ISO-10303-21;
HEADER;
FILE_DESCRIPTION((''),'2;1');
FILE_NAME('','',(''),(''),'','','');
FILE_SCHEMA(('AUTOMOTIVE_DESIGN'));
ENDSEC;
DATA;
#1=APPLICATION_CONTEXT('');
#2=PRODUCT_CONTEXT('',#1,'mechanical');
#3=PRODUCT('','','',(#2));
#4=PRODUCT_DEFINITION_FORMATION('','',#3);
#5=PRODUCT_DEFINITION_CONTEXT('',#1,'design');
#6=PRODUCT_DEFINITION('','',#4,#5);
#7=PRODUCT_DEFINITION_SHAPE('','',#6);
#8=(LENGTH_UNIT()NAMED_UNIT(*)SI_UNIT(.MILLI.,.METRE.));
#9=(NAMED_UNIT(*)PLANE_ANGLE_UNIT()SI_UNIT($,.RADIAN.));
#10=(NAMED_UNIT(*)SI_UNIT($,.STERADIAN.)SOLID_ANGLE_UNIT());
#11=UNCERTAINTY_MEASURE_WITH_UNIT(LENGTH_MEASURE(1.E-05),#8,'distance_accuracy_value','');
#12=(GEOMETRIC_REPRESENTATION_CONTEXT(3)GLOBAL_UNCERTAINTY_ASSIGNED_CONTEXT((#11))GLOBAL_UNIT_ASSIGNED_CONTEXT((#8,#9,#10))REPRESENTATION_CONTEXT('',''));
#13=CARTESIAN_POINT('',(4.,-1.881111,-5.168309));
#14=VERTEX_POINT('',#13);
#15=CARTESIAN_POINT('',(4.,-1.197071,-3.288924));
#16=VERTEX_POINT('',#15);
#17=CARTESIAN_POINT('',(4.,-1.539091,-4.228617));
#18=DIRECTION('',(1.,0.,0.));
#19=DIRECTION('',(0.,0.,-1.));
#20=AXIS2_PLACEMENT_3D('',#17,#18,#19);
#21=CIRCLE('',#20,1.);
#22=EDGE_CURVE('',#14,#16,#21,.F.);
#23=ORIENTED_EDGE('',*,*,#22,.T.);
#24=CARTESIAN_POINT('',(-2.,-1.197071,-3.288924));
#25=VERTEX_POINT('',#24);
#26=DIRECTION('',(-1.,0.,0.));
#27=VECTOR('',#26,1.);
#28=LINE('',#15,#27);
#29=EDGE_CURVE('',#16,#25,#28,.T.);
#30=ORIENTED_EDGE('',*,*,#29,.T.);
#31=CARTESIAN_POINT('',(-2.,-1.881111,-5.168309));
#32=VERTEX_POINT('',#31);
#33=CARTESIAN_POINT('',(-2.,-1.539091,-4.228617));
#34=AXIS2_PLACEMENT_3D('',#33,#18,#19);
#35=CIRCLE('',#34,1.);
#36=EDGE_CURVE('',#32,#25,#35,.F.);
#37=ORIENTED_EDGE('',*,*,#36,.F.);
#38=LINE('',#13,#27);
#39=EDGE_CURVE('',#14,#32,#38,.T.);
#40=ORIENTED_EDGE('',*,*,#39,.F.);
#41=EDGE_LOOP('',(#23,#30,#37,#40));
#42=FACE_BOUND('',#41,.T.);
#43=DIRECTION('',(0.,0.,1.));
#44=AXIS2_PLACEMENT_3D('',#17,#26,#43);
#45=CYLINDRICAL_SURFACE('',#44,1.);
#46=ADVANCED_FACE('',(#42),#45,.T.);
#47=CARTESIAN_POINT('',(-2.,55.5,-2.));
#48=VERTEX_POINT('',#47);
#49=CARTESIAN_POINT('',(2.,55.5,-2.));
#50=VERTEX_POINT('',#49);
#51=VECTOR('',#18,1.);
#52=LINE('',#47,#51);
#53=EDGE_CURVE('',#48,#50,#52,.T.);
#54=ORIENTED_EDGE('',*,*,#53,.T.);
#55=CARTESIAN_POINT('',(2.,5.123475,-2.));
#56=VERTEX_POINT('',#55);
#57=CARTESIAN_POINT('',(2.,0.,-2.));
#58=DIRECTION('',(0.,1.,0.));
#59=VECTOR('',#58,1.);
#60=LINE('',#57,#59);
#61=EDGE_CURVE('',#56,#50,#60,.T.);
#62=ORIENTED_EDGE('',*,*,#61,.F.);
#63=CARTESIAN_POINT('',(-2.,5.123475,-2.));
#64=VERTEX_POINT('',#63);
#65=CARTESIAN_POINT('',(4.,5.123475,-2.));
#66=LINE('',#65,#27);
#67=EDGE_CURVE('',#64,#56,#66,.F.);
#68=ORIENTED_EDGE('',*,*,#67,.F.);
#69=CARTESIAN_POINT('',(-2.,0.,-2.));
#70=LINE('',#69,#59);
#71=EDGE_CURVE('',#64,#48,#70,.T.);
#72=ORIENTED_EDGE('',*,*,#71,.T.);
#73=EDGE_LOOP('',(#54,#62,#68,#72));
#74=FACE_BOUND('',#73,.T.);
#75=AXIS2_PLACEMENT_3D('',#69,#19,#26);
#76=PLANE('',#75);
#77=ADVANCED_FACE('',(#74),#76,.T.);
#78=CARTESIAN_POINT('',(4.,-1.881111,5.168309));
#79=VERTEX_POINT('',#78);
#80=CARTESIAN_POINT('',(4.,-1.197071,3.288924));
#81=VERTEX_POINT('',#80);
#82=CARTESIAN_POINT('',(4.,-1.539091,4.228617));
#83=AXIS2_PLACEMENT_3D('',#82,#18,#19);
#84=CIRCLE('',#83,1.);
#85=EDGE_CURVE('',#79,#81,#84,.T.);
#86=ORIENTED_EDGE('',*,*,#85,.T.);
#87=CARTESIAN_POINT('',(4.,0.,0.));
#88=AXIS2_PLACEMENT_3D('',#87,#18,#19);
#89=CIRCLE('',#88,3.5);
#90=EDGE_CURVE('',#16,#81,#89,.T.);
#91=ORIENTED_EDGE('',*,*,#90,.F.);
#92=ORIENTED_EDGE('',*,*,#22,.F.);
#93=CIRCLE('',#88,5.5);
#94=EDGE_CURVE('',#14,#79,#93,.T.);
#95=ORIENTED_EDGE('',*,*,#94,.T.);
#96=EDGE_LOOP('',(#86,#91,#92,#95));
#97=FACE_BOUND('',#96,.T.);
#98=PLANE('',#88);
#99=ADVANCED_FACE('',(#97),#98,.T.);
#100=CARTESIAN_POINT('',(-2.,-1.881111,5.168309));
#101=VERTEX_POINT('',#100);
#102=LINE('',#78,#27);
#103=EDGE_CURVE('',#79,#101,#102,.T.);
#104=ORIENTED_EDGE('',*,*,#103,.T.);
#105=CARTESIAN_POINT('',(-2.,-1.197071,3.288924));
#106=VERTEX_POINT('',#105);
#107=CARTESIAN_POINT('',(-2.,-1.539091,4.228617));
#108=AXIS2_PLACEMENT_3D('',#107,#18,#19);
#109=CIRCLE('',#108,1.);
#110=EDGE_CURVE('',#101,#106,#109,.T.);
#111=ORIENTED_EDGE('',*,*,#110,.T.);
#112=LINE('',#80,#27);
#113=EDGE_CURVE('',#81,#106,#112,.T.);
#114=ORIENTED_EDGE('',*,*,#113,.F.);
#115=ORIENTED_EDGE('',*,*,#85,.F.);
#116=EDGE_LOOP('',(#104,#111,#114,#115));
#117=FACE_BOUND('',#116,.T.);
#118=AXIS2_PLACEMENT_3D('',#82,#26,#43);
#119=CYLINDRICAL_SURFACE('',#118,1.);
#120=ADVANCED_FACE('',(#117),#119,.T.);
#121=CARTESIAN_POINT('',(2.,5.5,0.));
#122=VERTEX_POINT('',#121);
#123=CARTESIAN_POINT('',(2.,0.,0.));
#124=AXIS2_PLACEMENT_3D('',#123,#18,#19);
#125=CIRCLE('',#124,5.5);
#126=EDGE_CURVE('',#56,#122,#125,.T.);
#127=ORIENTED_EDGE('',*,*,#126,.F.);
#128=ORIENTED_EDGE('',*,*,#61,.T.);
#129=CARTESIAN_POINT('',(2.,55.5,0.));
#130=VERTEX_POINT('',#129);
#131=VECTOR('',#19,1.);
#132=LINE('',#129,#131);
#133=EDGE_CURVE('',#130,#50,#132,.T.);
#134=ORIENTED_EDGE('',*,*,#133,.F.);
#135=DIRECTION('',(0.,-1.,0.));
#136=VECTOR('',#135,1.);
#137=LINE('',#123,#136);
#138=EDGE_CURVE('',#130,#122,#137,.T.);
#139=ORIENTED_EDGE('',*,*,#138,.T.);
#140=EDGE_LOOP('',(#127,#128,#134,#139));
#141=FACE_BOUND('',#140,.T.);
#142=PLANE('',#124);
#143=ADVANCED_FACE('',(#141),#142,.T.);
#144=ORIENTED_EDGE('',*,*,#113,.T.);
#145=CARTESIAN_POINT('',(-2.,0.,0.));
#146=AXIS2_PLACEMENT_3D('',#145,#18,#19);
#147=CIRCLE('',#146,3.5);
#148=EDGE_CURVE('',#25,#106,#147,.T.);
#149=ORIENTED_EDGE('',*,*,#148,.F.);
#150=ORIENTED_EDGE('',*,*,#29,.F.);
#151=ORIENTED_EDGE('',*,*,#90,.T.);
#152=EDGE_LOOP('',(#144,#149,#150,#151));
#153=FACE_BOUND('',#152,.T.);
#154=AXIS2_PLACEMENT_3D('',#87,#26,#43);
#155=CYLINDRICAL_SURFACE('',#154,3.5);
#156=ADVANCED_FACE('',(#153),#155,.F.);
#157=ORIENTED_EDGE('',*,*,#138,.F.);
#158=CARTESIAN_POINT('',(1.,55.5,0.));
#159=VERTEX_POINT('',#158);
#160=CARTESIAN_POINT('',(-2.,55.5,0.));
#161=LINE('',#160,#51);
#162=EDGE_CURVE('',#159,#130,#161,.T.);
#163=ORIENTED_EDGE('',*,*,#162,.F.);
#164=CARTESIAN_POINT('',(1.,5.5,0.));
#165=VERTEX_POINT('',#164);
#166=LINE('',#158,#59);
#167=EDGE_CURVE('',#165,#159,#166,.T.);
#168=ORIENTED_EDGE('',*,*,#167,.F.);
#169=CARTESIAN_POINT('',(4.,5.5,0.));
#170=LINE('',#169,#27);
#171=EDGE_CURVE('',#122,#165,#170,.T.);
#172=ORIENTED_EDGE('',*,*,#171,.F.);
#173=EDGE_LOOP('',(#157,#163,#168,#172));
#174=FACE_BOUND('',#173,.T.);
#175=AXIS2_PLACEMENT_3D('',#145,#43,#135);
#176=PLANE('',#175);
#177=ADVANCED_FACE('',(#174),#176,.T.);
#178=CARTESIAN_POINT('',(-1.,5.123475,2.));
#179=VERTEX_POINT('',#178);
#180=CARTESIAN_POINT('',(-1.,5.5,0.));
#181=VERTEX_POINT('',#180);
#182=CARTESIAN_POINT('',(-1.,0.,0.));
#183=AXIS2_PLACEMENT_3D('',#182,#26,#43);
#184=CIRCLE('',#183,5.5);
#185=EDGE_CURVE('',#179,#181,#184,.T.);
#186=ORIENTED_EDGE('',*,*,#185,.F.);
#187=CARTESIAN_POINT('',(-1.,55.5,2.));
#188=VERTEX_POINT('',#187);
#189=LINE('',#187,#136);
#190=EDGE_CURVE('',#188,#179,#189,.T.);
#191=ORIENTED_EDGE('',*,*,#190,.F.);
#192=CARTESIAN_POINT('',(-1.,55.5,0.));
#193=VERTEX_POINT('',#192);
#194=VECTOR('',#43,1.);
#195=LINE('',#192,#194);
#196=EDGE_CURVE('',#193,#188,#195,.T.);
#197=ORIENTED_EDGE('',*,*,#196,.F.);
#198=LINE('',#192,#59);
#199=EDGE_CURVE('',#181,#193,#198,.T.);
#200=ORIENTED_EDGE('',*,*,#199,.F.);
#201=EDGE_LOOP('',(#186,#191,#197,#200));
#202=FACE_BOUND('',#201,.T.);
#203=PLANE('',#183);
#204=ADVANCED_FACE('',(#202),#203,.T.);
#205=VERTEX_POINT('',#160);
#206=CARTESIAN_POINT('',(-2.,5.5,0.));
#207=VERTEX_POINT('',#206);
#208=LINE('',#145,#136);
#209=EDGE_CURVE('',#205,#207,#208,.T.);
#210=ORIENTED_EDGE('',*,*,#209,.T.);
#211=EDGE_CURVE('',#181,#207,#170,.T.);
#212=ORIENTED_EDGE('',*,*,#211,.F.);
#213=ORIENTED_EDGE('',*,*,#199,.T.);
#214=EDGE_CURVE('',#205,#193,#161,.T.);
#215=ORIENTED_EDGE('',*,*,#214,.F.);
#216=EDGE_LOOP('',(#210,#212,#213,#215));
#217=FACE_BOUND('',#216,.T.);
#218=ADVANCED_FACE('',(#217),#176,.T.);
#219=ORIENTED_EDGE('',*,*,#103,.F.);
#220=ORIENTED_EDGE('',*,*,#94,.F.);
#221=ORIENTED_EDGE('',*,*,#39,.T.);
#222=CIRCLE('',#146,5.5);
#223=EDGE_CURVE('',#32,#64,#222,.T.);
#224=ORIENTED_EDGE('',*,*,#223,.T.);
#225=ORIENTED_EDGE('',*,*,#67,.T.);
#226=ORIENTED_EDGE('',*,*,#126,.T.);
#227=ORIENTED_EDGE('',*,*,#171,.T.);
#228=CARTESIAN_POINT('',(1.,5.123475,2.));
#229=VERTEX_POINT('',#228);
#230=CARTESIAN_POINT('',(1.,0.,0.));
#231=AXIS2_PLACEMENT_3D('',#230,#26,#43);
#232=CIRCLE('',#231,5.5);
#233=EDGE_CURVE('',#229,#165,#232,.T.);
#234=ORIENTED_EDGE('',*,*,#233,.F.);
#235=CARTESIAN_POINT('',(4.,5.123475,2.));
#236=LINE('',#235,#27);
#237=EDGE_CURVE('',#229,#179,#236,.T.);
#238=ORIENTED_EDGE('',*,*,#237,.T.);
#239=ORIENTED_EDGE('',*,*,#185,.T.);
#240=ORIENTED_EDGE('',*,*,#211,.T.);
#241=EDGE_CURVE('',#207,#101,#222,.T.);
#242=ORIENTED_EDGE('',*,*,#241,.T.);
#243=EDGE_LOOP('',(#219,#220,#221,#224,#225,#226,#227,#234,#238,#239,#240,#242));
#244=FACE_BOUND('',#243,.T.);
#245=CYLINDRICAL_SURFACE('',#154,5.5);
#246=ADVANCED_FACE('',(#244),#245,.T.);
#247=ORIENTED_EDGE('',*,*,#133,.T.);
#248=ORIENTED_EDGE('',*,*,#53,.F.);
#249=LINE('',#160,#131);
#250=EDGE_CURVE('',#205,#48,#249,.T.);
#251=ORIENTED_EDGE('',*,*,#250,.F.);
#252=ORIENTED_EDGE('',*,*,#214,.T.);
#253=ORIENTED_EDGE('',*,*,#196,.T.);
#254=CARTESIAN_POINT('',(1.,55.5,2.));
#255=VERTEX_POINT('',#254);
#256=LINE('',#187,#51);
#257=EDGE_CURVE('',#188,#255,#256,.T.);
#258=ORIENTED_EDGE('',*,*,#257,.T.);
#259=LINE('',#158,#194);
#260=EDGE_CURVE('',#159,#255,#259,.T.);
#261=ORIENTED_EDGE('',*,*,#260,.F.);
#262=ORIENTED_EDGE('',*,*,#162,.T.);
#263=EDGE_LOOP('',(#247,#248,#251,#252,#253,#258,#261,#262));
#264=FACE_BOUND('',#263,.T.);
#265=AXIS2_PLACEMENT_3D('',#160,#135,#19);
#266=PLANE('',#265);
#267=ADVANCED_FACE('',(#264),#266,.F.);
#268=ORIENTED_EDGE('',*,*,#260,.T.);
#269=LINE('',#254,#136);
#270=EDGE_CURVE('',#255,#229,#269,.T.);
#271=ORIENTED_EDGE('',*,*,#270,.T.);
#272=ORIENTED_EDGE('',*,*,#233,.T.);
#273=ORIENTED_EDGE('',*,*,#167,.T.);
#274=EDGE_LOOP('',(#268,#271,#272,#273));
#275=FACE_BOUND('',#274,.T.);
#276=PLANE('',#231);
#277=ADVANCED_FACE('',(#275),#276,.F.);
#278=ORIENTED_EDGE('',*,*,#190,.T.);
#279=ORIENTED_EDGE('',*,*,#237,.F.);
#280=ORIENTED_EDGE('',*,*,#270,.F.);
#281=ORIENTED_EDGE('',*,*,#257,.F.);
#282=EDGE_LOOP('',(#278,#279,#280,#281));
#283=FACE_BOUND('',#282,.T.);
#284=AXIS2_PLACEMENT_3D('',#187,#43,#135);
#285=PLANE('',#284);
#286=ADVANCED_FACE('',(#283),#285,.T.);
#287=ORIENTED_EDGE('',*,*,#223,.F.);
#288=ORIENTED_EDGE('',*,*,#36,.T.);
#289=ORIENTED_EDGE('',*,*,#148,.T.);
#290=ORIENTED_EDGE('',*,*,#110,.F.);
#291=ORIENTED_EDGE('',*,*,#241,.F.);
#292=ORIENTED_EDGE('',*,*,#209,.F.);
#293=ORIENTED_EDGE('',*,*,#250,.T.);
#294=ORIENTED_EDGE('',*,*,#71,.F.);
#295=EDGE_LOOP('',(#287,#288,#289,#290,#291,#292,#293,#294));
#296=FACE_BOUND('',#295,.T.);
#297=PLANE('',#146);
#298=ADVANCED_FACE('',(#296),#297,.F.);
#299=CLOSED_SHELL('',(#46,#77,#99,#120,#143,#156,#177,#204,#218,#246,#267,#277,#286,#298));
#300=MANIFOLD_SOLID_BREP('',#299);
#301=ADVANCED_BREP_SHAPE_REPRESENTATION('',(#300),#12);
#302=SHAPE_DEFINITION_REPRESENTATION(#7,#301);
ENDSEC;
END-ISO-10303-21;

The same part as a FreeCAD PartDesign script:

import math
import FreeCAD as App
import Part
import Sketcher

V = App.Vector


def add_polygon(sketch, points):
    """Adds a closed chain of lines whose ends are joined by coincident constraints."""
    first, n = sketch.GeometryCount, len(points)
    for a, b in zip(points, points[1:] + points[:1]):
        sketch.addGeometry(Part.LineSegment(App.Vector(*a, 0), App.Vector(*b, 0)), False)
    for i in range(n):
        sketch.addConstraint(Sketcher.Constraint("Coincident", first + i, 2, first + (i + 1) % n, 1))

doc = App.newDocument("Part")
body = doc.addObject("PartDesign::Body", "Body")

# Sketch on YZ plane
sketch1 = doc.addObject("Sketcher::SketchObject", "Sketch")
body.addObject(sketch1)
sketch1.AttachmentSupport = (doc.YZ_Plane, [""])
sketch1.MapMode = "FlatFace"
sketch1.addGeometry([
    Part.ArcOfCircle(Part.Circle(V(0, 0, 0), V(0, 0, 1), 3.5), math.radians(-90), math.radians(90)),  # 0
    Part.ArcOfCircle(Part.Circle(V(0, 0, 0), V(0, 0, 1), 3.5), math.radians(-110), math.radians(-90)),  # 1
    Part.ArcOfCircle(Part.Circle(V(-1.5, -4.2, 0), V(0, 0, 1), 1), math.radians(70), math.radians(250)),  # 2
    Part.ArcOfCircle(Part.Circle(V(0, 0, 0), V(0, 0, 1), 5.5), math.radians(-110), math.radians(-90)),  # 3
    Part.ArcOfCircle(Part.Circle(V(0, 0, 0), V(0, 0, 1), 5.5), math.radians(-90), math.radians(90)),  # 4
    Part.ArcOfCircle(Part.Circle(V(0, 0, 0), V(0, 0, 1), 5.5), math.radians(90), math.radians(110)),  # 5
    Part.ArcOfCircle(Part.Circle(V(-1.5, 4.2, 0), V(0, 0, 1), 1), math.radians(110), math.radians(290)),  # 6
    Part.ArcOfCircle(Part.Circle(V(0, 0, 0), V(0, 0, 1), 3.5), math.radians(90), math.radians(110)),  # 7
], False)
sketch1.addConstraint([
    Sketcher.Constraint("Tangent", 0, 1, 1, 2),
    Sketcher.Constraint("Tangent", 1, 1, 2, 1),
    Sketcher.Constraint("Tangent", 2, 2, 3, 1),
    Sketcher.Constraint("Tangent", 3, 2, 4, 1),
    Sketcher.Constraint("Tangent", 4, 2, 5, 1),
    Sketcher.Constraint("Tangent", 5, 2, 6, 1),
    Sketcher.Constraint("Tangent", 6, 2, 7, 2),
    Sketcher.Constraint("Tangent", 7, 1, 0, 2),
    Sketcher.Constraint("Coincident", 0, 3, -1, 1),
    Sketcher.Constraint("Coincident", 3, 3, -1, 1),
    Sketcher.Constraint("Equal", 0, 1),
    Sketcher.Constraint("Equal", 3, 4),
    Sketcher.Constraint("Equal", 4, 5),
    Sketcher.Constraint("Equal", 2, 6),
    Sketcher.Constraint("PointOnObject", 0, 1, -2),
    Sketcher.Constraint("PointOnObject", 3, 2, -2),
    Sketcher.Constraint("PointOnObject", 4, 2, -2),
    Sketcher.Constraint("PointOnObject", 7, 1, -2),
    Sketcher.Constraint("Vertical", 2, 3, 6, 3),
    Sketcher.Constraint("Radius", 2, 1.0),
    Sketcher.Constraint("Radius", 0, 3.5),
    Sketcher.Constraint("DistanceX", 2, 3, -1, 1, 1.539091),
])
pad1 = doc.addObject("PartDesign::Pad", "Pad")
body.addObject(pad1)
pad1.Profile = sketch1
pad1.Type = "TwoLengths"
pad1.Length = 4
pad1.Length2 = 2

# Sketch on YZ plane
sketch2 = doc.addObject("Sketcher::SketchObject", "Sketch001")
body.addObject(sketch2)
sketch2.AttachmentSupport = (doc.YZ_Plane, [""])
sketch2.MapMode = "FlatFace"
add_polygon(sketch2, [(3.5, 0), (3.5, -2), (55.5, -2), (55.5, 0)])  # lines 0-3
sketch2.addConstraint([
    Sketcher.Constraint("Vertical", 0),
    Sketcher.Constraint("Horizontal", 1),
    Sketcher.Constraint("Vertical", 2),
    Sketcher.Constraint("Horizontal", 3),
    Sketcher.Constraint("PointOnObject", 2, 2, -1),
    Sketcher.Constraint("DistanceX", 1, 1, 1, 2, 52.0),
    Sketcher.Constraint("DistanceY", 0, 2, 0, 1, 2.0),
    Sketcher.Constraint("DistanceX", -1, 1, 0, 2, 3.5),
])
pad2 = doc.addObject("PartDesign::Pad", "Pad001")
body.addObject(pad2)
pad2.Profile = sketch2
pad2.Type = "TwoLengths"
pad2.Length = 2
pad2.Length2 = 2

# Sketch on YZ plane
sketch3 = doc.addObject("Sketcher::SketchObject", "Sketch002")
body.addObject(sketch3)
sketch3.AttachmentSupport = (doc.YZ_Plane, [""])
sketch3.MapMode = "FlatFace"
add_polygon(sketch3, [(55.5, 2), (3.5, 2), (3.5, 0), (55.5, 0)])  # lines 0-3
sketch3.addConstraint([
    Sketcher.Constraint("Horizontal", 0),
    Sketcher.Constraint("Vertical", 1),
    Sketcher.Constraint("Horizontal", 2),
    Sketcher.Constraint("Vertical", 3),
    Sketcher.Constraint("PointOnObject", 1, 2, -1),
    Sketcher.Constraint("DistanceX", 0, 2, 0, 1, 52.0),
    Sketcher.Constraint("DistanceY", 1, 2, 1, 1, 2.0),
    Sketcher.Constraint("DistanceX", -1, 1, 0, 2, 3.5),
])
pad3 = doc.addObject("PartDesign::Pad", "Pad002")
body.addObject(pad3)
pad3.Profile = sketch3
pad3.Type = "TwoLengths"
pad3.Length = 1
pad3.Length2 = 1

doc.recompute()
